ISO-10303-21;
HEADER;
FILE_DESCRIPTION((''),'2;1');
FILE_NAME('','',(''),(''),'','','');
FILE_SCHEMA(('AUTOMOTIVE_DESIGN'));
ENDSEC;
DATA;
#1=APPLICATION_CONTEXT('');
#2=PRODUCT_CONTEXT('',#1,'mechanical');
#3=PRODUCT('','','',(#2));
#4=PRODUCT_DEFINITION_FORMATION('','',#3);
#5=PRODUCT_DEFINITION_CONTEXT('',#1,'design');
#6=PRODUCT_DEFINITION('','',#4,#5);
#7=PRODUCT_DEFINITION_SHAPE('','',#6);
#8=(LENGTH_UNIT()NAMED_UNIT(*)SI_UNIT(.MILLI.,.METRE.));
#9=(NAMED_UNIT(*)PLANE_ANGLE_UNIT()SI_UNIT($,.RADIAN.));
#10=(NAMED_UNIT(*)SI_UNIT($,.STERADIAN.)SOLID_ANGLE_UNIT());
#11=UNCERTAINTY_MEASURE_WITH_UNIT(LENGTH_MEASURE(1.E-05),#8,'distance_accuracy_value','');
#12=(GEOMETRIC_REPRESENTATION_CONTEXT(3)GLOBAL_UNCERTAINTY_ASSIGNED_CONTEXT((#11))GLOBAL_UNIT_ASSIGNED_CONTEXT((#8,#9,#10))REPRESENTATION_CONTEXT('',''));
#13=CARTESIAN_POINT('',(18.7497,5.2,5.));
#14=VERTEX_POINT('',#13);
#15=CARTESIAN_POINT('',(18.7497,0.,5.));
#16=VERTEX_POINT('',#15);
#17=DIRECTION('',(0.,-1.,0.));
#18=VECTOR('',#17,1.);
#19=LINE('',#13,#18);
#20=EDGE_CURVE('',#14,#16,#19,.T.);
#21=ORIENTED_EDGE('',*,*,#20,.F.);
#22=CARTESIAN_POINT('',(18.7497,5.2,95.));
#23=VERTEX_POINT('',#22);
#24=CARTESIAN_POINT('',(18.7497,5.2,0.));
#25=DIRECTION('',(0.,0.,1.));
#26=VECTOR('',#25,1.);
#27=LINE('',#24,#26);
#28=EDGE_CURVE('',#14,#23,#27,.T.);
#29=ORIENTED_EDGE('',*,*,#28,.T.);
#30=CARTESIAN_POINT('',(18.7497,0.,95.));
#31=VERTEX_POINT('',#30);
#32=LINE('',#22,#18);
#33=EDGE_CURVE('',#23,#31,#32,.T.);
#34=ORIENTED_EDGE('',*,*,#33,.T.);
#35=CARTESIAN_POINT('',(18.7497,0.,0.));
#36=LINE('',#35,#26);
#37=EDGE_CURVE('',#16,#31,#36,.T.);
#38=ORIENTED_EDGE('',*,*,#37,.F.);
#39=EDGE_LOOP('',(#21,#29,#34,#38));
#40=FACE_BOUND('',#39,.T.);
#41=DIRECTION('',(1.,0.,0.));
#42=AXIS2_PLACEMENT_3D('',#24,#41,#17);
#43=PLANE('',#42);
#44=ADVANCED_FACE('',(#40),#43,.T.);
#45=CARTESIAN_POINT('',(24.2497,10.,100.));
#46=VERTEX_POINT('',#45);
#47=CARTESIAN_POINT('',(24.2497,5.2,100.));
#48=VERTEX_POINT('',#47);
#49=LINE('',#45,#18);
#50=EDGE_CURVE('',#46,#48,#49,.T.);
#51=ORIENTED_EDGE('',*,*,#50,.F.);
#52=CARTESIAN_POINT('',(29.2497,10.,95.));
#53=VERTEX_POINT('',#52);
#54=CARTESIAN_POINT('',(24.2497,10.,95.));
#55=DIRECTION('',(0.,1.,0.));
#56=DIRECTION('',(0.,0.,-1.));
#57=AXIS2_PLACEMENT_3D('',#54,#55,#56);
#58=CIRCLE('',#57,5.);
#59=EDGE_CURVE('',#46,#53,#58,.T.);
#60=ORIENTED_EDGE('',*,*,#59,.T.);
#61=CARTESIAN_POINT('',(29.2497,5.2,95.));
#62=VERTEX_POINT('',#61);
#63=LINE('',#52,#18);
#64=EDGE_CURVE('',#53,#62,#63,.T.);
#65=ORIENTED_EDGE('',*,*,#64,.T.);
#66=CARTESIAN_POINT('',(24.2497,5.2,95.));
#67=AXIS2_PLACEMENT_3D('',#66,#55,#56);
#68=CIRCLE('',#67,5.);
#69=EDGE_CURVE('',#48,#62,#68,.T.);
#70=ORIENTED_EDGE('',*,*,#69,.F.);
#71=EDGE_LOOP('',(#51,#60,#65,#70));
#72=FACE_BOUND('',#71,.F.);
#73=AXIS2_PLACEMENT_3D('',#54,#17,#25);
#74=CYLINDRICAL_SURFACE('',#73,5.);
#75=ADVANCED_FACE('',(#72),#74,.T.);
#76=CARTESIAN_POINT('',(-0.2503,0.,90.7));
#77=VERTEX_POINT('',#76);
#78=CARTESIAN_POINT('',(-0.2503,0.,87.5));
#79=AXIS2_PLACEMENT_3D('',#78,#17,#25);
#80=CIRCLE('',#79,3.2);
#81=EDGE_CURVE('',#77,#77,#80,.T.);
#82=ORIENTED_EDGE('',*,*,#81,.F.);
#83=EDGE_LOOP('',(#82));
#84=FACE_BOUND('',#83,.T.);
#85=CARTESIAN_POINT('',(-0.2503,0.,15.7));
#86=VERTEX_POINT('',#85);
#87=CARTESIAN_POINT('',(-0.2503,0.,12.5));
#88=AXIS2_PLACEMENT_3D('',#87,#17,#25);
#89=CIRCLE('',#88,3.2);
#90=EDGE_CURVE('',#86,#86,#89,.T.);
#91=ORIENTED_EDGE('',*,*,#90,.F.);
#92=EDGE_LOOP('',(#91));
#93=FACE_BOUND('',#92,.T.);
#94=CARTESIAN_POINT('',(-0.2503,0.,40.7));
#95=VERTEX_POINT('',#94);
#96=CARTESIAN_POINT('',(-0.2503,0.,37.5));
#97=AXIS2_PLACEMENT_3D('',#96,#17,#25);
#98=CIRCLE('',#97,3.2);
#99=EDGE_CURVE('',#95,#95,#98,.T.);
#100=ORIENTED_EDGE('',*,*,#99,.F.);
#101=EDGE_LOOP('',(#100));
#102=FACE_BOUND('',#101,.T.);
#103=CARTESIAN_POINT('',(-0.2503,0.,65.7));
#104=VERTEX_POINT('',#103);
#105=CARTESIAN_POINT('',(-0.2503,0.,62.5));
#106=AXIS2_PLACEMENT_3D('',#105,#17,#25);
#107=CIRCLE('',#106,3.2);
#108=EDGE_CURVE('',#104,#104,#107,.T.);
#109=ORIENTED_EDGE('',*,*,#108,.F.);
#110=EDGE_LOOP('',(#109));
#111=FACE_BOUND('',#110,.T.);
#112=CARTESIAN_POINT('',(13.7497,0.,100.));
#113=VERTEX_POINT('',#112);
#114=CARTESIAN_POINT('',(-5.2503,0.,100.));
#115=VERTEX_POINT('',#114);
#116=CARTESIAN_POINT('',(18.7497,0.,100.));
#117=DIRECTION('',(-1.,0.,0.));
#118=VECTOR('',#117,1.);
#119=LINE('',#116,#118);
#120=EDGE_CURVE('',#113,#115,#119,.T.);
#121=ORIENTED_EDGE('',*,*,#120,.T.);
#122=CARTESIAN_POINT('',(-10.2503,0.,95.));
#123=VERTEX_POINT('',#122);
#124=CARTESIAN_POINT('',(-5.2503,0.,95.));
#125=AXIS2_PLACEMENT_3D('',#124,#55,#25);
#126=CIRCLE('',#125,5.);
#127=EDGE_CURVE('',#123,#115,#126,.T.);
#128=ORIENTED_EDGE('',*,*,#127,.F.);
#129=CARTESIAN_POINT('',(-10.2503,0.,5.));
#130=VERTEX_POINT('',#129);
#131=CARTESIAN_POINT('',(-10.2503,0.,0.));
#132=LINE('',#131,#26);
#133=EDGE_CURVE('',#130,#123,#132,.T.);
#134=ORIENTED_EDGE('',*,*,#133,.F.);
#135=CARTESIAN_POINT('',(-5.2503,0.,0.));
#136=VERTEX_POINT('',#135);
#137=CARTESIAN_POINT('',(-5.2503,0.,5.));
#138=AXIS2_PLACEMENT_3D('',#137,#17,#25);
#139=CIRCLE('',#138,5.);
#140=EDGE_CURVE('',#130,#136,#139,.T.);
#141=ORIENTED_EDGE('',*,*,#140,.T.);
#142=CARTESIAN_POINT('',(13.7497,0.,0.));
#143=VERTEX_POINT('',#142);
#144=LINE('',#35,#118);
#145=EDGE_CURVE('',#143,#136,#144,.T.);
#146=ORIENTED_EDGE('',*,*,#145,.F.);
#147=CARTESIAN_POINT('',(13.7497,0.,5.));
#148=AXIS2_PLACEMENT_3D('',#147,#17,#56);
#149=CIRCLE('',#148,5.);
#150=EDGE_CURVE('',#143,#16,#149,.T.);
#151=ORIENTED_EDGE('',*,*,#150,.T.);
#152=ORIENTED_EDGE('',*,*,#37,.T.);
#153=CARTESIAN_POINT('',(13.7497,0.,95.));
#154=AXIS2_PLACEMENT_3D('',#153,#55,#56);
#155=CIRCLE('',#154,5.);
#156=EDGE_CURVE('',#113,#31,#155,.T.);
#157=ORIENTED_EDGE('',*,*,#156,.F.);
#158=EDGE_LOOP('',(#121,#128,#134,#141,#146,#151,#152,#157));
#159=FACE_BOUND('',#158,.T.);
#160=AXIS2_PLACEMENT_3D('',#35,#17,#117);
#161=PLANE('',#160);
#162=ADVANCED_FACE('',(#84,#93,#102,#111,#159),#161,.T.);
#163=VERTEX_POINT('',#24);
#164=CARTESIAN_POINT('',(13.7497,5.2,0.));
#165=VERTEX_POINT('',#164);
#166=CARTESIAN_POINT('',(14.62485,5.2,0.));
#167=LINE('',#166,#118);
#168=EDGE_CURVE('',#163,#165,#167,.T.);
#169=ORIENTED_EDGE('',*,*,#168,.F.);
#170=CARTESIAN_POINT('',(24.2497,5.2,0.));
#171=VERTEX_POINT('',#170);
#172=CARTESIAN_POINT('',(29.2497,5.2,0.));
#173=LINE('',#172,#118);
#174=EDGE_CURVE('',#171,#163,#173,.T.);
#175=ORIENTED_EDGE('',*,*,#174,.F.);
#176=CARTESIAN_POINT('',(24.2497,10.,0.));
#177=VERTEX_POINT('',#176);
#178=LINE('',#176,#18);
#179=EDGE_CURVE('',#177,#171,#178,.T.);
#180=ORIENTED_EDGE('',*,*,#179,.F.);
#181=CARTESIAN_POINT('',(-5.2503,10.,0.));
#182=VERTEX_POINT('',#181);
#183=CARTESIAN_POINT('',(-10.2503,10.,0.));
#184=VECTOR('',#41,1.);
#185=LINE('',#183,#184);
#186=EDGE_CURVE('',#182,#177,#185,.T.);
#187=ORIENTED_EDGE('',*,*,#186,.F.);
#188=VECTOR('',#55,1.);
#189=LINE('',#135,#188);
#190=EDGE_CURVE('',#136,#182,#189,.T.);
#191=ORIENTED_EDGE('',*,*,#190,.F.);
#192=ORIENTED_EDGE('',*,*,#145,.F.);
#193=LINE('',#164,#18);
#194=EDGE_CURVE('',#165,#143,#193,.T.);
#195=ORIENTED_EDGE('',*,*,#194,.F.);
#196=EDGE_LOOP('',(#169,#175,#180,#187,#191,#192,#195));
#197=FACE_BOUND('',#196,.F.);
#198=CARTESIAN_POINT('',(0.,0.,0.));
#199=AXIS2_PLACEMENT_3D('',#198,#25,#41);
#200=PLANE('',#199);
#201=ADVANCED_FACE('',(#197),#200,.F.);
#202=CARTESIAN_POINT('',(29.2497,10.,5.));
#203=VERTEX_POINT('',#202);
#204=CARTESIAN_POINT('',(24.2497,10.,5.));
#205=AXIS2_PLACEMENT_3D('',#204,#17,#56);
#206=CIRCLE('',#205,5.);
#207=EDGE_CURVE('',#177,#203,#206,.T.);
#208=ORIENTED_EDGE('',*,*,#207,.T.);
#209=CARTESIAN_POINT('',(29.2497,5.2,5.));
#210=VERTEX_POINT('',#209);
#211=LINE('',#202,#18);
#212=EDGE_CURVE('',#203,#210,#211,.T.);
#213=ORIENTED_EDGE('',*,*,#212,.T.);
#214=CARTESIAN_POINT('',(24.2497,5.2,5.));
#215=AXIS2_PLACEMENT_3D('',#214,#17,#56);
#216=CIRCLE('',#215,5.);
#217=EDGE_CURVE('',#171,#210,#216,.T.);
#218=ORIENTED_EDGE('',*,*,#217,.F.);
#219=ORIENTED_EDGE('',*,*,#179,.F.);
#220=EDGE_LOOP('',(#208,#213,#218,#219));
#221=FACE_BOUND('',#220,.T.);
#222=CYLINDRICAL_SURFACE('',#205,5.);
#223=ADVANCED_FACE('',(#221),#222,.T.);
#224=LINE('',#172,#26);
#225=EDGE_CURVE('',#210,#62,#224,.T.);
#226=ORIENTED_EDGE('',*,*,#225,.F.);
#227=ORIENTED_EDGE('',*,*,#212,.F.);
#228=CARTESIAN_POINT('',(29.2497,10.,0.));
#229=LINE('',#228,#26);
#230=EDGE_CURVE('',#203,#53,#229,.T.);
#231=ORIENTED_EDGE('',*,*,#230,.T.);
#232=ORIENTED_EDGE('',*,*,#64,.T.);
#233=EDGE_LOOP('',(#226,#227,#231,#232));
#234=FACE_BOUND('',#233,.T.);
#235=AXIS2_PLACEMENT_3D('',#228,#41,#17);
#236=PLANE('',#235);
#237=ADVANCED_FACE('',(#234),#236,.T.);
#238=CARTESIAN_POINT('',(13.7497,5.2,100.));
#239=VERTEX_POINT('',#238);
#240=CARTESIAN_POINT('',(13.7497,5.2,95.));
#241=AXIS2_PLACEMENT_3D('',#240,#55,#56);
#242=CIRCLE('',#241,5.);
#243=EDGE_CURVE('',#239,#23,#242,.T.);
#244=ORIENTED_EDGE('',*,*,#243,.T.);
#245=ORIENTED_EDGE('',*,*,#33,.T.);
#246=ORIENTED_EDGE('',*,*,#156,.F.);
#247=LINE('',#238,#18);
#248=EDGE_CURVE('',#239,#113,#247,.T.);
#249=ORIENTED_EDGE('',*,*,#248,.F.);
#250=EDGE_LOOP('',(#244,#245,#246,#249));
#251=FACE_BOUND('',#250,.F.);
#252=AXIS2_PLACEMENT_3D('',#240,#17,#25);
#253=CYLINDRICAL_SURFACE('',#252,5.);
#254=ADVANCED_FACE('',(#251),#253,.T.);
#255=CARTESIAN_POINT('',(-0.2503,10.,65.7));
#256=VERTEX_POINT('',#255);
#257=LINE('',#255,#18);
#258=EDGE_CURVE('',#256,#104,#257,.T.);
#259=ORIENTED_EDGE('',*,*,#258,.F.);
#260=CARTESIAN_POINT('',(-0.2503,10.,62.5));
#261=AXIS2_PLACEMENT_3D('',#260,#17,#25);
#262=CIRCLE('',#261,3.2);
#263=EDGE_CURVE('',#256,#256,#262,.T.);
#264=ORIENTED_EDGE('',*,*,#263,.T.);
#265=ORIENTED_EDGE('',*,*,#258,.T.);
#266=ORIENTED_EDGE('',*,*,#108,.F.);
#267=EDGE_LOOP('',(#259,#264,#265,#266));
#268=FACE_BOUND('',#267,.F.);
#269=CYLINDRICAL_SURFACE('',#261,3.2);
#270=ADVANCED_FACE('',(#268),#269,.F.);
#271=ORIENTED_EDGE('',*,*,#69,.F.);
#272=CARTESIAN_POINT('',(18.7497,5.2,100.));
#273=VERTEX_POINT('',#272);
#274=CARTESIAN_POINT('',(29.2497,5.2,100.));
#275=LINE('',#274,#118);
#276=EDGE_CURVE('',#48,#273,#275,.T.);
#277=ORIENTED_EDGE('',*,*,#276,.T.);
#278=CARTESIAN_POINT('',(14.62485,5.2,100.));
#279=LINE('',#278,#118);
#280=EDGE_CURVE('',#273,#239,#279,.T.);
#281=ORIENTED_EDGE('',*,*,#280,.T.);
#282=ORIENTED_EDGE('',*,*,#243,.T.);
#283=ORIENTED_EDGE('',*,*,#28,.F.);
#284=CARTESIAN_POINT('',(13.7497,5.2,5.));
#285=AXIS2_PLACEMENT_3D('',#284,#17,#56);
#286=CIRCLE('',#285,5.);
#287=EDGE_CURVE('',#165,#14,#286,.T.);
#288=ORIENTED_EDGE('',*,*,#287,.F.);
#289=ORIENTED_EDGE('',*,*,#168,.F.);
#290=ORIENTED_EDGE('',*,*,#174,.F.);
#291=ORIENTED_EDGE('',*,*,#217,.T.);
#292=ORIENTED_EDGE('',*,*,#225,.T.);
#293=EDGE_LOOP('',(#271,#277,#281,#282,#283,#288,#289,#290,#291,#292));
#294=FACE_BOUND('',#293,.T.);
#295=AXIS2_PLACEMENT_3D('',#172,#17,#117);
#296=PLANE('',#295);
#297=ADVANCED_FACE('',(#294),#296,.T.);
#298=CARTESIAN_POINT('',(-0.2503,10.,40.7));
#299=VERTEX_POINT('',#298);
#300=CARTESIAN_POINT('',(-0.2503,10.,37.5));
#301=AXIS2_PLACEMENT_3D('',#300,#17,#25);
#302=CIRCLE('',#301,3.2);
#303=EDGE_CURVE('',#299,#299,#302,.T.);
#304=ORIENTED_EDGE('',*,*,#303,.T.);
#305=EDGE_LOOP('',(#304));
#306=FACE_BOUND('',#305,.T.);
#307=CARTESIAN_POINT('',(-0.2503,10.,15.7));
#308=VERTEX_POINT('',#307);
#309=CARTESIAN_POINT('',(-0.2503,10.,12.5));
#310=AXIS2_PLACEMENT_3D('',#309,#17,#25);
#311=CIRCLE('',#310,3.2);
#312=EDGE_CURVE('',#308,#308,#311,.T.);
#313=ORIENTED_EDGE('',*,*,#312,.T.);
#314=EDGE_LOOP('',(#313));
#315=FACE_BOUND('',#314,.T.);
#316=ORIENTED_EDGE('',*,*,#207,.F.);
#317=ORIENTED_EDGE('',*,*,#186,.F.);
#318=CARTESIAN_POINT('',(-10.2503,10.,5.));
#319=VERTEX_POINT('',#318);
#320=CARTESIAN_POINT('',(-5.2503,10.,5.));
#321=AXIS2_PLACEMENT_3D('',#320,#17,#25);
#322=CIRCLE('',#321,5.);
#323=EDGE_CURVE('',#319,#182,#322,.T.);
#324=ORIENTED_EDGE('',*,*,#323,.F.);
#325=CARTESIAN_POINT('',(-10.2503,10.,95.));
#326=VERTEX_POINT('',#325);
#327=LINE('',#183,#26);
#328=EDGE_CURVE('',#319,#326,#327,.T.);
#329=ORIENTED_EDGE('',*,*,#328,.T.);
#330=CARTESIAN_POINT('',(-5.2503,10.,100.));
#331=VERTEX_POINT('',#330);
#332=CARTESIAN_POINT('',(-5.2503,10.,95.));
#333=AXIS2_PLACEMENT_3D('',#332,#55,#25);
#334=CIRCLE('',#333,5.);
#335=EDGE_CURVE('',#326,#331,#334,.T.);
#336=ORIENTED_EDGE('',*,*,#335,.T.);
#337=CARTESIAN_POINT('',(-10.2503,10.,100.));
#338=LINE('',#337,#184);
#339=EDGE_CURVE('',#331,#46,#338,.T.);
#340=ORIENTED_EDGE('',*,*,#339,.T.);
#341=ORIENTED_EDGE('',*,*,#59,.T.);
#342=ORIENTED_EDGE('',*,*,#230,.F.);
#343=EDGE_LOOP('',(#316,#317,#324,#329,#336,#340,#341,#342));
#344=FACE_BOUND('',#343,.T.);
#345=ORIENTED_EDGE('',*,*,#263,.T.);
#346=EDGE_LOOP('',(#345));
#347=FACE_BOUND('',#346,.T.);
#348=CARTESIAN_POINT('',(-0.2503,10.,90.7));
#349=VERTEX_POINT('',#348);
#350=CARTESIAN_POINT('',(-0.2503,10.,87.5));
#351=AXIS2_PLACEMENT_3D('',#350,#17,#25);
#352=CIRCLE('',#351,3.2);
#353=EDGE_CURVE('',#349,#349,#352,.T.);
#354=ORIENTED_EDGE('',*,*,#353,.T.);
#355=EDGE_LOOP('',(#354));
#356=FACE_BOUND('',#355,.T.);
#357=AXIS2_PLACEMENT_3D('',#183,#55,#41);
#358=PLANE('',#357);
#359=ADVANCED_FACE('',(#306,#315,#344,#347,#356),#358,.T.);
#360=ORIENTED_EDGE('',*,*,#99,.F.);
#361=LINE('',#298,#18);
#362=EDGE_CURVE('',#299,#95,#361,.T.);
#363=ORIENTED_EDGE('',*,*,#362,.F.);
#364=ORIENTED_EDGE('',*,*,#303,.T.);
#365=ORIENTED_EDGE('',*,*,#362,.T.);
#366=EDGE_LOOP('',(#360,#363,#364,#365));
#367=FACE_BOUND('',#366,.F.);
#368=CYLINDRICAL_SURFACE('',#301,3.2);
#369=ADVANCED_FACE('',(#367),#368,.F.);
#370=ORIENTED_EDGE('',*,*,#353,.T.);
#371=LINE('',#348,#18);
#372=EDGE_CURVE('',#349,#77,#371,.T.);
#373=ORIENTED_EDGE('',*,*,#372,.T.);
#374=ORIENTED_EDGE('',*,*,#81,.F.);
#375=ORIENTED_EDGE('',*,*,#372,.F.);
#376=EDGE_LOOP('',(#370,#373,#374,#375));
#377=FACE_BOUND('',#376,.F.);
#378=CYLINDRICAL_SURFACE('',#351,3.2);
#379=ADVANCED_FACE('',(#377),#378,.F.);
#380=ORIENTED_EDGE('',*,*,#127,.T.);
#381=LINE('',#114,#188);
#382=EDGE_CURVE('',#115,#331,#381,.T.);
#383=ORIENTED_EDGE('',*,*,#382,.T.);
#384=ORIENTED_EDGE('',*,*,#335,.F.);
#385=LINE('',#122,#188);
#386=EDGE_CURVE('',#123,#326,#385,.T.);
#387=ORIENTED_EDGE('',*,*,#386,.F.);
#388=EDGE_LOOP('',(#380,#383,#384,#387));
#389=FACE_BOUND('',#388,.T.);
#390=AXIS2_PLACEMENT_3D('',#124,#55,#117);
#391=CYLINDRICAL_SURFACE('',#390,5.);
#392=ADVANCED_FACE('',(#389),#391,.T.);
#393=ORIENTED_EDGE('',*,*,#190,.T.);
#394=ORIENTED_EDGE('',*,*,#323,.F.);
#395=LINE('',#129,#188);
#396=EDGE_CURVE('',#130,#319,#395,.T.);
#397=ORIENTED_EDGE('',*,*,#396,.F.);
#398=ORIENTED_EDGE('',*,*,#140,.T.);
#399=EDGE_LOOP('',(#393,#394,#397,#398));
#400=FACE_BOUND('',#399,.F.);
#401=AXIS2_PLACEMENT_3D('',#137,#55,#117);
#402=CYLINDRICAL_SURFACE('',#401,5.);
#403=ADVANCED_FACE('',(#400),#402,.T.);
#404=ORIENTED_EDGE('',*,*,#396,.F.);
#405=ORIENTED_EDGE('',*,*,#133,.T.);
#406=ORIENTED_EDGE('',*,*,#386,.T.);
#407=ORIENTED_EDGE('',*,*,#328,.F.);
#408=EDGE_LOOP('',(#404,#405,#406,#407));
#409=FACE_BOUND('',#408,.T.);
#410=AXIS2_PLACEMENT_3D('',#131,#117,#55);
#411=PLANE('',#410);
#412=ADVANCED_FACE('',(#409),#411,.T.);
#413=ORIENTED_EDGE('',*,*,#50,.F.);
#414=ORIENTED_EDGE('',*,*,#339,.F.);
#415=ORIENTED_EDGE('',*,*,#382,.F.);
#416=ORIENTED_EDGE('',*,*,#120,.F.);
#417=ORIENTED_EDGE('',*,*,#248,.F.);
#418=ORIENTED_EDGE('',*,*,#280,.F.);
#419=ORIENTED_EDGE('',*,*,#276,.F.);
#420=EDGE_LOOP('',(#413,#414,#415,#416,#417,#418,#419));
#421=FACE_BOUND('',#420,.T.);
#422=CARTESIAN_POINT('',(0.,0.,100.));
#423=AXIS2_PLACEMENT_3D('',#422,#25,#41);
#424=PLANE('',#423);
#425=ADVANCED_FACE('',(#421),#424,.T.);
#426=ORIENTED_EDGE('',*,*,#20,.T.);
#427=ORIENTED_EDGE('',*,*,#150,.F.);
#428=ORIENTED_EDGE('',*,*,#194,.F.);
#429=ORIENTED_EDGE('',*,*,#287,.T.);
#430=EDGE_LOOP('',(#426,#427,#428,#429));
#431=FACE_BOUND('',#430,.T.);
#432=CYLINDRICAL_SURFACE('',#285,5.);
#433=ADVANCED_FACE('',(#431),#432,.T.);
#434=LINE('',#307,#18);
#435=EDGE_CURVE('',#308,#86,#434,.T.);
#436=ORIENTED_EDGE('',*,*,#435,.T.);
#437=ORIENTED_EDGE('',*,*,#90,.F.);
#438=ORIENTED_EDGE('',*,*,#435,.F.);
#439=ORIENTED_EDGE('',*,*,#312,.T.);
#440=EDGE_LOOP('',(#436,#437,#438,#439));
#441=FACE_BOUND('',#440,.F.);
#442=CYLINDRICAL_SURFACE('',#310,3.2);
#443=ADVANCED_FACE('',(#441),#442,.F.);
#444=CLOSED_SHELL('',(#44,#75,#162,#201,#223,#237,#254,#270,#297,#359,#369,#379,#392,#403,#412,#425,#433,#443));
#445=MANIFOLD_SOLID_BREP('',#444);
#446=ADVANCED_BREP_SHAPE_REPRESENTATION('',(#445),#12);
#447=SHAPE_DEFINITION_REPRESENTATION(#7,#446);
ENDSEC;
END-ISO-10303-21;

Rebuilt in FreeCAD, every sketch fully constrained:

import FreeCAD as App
import Part
import Sketcher
Q = App.Units.Quantity


def edges_at(feature, points):
    """Names of the edges that pass closest to the given points."""
    edges = feature.Shape.Edges
    near = lambda p: min(range(len(edges)), key=lambda i: edges[i].distToShape(Part.Vertex(*p))[0])
    return sorted({f"Edge{near(p) + 1}" for p in points})

doc = App.newDocument("Part")
body = doc.addObject("PartDesign::Body", "Body")

# Sketch on XY plane
sketch1 = body.newObject("Sketcher::SketchObject", "Sketch")
sketch1.AttachmentSupport = (doc.getObject("XY_Plane"), [""])
sketch1.MapMode = "FlatFace"
sketch1.addGeometry([
    Part.LineSegment(App.Vector(-10.3, 10, 0), App.Vector(-10.3, 0, 0)),  # 0
    Part.LineSegment(App.Vector(-10.3, 0, 0), App.Vector(18.7, 0, 0)),  # 1
    Part.LineSegment(App.Vector(18.7, 0, 0), App.Vector(18.7, 5.2, 0)),  # 2
    Part.LineSegment(App.Vector(18.7, 5.2, 0), App.Vector(29.2, 5.2, 0)),  # 3
    Part.LineSegment(App.Vector(29.2, 5.2, 0), App.Vector(29.2, 10, 0)),  # 4
    Part.LineSegment(App.Vector(29.2, 10, 0), App.Vector(-10.3, 10, 0)),  # 5
], False)
sketch1.addConstraint([
    Sketcher.Constraint("Coincident", 0, 2, 1, 1),
    Sketcher.Constraint("Coincident", 1, 2, 2, 1),
    Sketcher.Constraint("Coincident", 2, 2, 3, 1),
    Sketcher.Constraint("Coincident", 3, 2, 4, 1),
    Sketcher.Constraint("Coincident", 4, 2, 5, 1),
    Sketcher.Constraint("Coincident", 5, 2, 0, 1),
    Sketcher.Constraint("Vertical", 0),
    Sketcher.Constraint("Horizontal", 1),
    Sketcher.Constraint("Vertical", 2),
    Sketcher.Constraint("Horizontal", 3),
    Sketcher.Constraint("Vertical", 4),
    Sketcher.Constraint("Horizontal", 5),
    Sketcher.Constraint("PointOnObject", 0, 2, -1),
    Sketcher.Constraint("DistanceY", 0, 2, 0, 1, Q("10 mm")),
    Sketcher.Constraint("DistanceX", 3, 1, 3, 2, Q("10.5 mm")),
    Sketcher.Constraint("DistanceX", 5, 2, 5, 1, Q("39.5 mm")),
    Sketcher.Constraint("DistanceY", 2, 1, 2, 2, Q("5.2 mm")),
    Sketcher.Constraint("DistanceX", 0, 2, -1, 1, Q("10.2503 mm")),
])
pad1 = body.newObject("PartDesign::Pad", "Pad")
pad1.Profile = sketch1
pad1.Length = 100

# Sketch on XZ plane
sketch2 = body.newObject("Sketcher::SketchObject", "Sketch001")
sketch2.AttachmentSupport = (doc.getObject("XZ_Plane"), [""])
sketch2.MapMode = "FlatFace"
sketch2.AttachmentOffset = App.Placement(App.Vector(0, 0, -10), App.Rotation())
sketch2.addGeometry([
    Part.Circle(App.Vector(-0.3, 37.5, 0), App.Vector(0, 0, 1), 3.2),
    Part.Circle(App.Vector(-0.3, 62.5, 0), App.Vector(0, 0, 1), 3.2),
    Part.Circle(App.Vector(-0.3, 87.5, 0), App.Vector(0, 0, 1), 3.2),
    Part.Circle(App.Vector(-0.3, 12.5, 0), App.Vector(0, 0, 1), 3.2),
], False)
sketch2.addConstraint([
    Sketcher.Constraint("Equal", 0, 1),
    Sketcher.Constraint("Equal", 1, 2),
    Sketcher.Constraint("Equal", 2, 3),
    Sketcher.Constraint("Vertical", 0, 3, 1, 3),
    Sketcher.Constraint("Vertical", 1, 3, 2, 3),
    Sketcher.Constraint("Vertical", 2, 3, 3, 3),
    Sketcher.Constraint("Diameter", 0, Q("6.4 mm")),
    Sketcher.Constraint("DistanceY", 0, 3, 1, 3, Q("25 mm")),
    Sketcher.Constraint("DistanceY", 1, 3, 2, 3, Q("25 mm")),
    Sketcher.Constraint("DistanceY", 3, 3, 0, 3, Q("25 mm")),
    Sketcher.Constraint("DistanceY", -1, 1, 0, 3, Q("37.5 mm")),
    Sketcher.Constraint("DistanceX", 0, 3, -1, 1, Q("0.2503 mm")),
])
doc.recompute()
hole = body.newObject("PartDesign::Hole", "Hole")
hole.Profile = sketch2
hole.ThreadType = "None"
hole.Diameter = 6.4
hole.DepthType = "ThroughAll"
hole.Reversed = True
doc.recompute()

fillet = body.newObject("PartDesign::Fillet", "Fillet")
fillet.Base = (hole, edges_at(hole, [
    (-10.25, 5, 0),
    (-10.25, 5, 100),
    (29.25, 7.6, 0),
    (18.75, 2.6, 0),
    (29.25, 7.6, 100),
    (18.75, 2.6, 100),
]))
fillet.Radius = 5

doc.recompute()
